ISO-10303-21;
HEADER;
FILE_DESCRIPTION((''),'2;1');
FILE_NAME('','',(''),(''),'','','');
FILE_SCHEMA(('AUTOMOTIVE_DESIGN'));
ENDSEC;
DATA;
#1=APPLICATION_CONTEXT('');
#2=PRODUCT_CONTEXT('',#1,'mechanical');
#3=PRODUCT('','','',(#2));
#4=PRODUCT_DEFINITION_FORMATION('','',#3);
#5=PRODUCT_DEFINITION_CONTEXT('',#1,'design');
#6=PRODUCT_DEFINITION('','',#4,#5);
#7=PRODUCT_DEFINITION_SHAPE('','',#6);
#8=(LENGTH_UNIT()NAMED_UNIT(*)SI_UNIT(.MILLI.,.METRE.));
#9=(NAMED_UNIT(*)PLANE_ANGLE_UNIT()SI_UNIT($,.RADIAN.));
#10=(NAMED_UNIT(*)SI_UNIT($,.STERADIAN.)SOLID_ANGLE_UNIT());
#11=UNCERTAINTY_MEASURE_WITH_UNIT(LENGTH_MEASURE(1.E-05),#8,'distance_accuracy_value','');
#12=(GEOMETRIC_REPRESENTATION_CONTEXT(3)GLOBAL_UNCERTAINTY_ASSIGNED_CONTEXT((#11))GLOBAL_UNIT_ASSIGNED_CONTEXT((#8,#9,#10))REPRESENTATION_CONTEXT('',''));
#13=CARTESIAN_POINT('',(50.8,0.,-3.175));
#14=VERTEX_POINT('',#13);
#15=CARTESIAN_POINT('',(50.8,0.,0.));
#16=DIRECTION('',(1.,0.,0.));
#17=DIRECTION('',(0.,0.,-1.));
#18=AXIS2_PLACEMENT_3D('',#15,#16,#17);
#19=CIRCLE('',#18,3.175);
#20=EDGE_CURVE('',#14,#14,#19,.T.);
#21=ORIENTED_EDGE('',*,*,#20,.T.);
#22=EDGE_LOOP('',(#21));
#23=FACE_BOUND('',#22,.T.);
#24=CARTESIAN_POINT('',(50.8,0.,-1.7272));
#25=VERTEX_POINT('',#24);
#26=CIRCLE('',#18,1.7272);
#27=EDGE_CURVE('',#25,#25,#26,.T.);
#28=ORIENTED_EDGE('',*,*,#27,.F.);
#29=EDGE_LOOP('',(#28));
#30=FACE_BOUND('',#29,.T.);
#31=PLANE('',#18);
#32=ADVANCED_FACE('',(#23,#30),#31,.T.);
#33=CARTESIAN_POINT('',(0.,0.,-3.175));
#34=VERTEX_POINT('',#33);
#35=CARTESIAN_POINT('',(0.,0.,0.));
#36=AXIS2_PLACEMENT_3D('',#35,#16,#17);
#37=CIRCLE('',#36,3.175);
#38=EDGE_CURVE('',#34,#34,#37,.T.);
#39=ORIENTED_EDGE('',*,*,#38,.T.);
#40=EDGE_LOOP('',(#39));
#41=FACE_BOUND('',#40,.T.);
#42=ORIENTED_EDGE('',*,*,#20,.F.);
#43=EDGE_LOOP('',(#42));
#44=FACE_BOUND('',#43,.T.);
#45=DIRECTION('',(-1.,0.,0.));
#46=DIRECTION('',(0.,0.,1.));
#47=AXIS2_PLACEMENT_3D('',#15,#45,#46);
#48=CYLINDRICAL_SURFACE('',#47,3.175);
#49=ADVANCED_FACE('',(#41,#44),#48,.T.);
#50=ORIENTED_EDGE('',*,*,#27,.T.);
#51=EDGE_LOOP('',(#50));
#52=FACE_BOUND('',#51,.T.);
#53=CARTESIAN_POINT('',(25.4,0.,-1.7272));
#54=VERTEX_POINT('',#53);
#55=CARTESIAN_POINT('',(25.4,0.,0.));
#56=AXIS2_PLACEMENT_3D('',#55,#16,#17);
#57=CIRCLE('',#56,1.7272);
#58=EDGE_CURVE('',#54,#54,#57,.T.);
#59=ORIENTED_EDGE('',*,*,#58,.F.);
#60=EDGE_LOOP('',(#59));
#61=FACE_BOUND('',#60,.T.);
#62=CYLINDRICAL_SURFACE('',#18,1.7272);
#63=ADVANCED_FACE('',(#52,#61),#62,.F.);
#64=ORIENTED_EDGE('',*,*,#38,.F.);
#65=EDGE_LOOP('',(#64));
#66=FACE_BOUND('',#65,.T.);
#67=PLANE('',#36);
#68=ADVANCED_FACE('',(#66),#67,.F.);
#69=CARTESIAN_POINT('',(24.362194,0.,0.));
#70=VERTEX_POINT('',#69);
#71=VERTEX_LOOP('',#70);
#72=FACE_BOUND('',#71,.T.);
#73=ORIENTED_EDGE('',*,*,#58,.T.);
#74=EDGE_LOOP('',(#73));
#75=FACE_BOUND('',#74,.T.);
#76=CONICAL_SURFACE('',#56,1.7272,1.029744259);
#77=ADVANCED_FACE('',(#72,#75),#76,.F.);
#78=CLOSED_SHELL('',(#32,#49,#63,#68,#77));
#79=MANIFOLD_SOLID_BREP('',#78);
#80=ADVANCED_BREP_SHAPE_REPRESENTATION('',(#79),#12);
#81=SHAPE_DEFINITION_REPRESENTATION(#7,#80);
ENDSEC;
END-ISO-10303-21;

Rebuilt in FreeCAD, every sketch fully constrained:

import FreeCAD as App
import Part
import Sketcher
from FreeCAD import Vector
Q = App.Units.Quantity

doc = App.newDocument("Part")
body = doc.addObject("PartDesign::Body", "Body")

# Sketch on YZ plane
sketch1 = doc.addObject("Sketcher::SketchObject", "Sketch")
body.addObject(sketch1)
sketch1.AttachmentSupport = (doc.YZ_Plane, [""])
sketch1.MapMode = "FlatFace"
sketch1.addGeometry(Part.Circle(Vector(0, 0, 0), Vector(0, 0, 1), 3.175), False)
sketch1.addConstraint(Sketcher.Constraint("Coincident", 0, 3, -1, 1))
sketch1.addConstraint(Sketcher.Constraint("Diameter", 0, Q("0.25 in")))
pad1 = doc.addObject("PartDesign::Pad", "Pad")
body.addObject(pad1)
pad1.Profile = sketch1
pad1.Length = Q("2 in")

# Sketch on YZ plane
sketch2 = doc.addObject("Sketcher::SketchObject", "Sketch001")
body.addObject(sketch2)
sketch2.AttachmentSupport = (doc.YZ_Plane, [""])
sketch2.MapMode = "FlatFace"
sketch2.AttachmentOffset = App.Placement(Vector(0, 0, 2 * 25.4), App.Rotation())
sketch2.addGeometry(Part.Circle(Vector(0, 0, 0), Vector(0, 0, 1), 1.7272), False)
sketch2.addConstraint(Sketcher.Constraint("Coincident", 0, 3, -1, 1))
sketch2.addConstraint(Sketcher.Constraint("Diameter", 0, Q("0.136 in")))
doc.recompute()
hole = doc.addObject("PartDesign::Hole", "Hole")
body.addObject(hole)
hole.Profile = sketch2
hole.ThreadType = "None"
hole.Diameter = Q("0.136 in")
hole.DepthType = "Dimension"
hole.Depth = Q("1 in")
hole.DrillPoint = "Angled"
hole.DrillPointAngle = 118

doc.recompute()
